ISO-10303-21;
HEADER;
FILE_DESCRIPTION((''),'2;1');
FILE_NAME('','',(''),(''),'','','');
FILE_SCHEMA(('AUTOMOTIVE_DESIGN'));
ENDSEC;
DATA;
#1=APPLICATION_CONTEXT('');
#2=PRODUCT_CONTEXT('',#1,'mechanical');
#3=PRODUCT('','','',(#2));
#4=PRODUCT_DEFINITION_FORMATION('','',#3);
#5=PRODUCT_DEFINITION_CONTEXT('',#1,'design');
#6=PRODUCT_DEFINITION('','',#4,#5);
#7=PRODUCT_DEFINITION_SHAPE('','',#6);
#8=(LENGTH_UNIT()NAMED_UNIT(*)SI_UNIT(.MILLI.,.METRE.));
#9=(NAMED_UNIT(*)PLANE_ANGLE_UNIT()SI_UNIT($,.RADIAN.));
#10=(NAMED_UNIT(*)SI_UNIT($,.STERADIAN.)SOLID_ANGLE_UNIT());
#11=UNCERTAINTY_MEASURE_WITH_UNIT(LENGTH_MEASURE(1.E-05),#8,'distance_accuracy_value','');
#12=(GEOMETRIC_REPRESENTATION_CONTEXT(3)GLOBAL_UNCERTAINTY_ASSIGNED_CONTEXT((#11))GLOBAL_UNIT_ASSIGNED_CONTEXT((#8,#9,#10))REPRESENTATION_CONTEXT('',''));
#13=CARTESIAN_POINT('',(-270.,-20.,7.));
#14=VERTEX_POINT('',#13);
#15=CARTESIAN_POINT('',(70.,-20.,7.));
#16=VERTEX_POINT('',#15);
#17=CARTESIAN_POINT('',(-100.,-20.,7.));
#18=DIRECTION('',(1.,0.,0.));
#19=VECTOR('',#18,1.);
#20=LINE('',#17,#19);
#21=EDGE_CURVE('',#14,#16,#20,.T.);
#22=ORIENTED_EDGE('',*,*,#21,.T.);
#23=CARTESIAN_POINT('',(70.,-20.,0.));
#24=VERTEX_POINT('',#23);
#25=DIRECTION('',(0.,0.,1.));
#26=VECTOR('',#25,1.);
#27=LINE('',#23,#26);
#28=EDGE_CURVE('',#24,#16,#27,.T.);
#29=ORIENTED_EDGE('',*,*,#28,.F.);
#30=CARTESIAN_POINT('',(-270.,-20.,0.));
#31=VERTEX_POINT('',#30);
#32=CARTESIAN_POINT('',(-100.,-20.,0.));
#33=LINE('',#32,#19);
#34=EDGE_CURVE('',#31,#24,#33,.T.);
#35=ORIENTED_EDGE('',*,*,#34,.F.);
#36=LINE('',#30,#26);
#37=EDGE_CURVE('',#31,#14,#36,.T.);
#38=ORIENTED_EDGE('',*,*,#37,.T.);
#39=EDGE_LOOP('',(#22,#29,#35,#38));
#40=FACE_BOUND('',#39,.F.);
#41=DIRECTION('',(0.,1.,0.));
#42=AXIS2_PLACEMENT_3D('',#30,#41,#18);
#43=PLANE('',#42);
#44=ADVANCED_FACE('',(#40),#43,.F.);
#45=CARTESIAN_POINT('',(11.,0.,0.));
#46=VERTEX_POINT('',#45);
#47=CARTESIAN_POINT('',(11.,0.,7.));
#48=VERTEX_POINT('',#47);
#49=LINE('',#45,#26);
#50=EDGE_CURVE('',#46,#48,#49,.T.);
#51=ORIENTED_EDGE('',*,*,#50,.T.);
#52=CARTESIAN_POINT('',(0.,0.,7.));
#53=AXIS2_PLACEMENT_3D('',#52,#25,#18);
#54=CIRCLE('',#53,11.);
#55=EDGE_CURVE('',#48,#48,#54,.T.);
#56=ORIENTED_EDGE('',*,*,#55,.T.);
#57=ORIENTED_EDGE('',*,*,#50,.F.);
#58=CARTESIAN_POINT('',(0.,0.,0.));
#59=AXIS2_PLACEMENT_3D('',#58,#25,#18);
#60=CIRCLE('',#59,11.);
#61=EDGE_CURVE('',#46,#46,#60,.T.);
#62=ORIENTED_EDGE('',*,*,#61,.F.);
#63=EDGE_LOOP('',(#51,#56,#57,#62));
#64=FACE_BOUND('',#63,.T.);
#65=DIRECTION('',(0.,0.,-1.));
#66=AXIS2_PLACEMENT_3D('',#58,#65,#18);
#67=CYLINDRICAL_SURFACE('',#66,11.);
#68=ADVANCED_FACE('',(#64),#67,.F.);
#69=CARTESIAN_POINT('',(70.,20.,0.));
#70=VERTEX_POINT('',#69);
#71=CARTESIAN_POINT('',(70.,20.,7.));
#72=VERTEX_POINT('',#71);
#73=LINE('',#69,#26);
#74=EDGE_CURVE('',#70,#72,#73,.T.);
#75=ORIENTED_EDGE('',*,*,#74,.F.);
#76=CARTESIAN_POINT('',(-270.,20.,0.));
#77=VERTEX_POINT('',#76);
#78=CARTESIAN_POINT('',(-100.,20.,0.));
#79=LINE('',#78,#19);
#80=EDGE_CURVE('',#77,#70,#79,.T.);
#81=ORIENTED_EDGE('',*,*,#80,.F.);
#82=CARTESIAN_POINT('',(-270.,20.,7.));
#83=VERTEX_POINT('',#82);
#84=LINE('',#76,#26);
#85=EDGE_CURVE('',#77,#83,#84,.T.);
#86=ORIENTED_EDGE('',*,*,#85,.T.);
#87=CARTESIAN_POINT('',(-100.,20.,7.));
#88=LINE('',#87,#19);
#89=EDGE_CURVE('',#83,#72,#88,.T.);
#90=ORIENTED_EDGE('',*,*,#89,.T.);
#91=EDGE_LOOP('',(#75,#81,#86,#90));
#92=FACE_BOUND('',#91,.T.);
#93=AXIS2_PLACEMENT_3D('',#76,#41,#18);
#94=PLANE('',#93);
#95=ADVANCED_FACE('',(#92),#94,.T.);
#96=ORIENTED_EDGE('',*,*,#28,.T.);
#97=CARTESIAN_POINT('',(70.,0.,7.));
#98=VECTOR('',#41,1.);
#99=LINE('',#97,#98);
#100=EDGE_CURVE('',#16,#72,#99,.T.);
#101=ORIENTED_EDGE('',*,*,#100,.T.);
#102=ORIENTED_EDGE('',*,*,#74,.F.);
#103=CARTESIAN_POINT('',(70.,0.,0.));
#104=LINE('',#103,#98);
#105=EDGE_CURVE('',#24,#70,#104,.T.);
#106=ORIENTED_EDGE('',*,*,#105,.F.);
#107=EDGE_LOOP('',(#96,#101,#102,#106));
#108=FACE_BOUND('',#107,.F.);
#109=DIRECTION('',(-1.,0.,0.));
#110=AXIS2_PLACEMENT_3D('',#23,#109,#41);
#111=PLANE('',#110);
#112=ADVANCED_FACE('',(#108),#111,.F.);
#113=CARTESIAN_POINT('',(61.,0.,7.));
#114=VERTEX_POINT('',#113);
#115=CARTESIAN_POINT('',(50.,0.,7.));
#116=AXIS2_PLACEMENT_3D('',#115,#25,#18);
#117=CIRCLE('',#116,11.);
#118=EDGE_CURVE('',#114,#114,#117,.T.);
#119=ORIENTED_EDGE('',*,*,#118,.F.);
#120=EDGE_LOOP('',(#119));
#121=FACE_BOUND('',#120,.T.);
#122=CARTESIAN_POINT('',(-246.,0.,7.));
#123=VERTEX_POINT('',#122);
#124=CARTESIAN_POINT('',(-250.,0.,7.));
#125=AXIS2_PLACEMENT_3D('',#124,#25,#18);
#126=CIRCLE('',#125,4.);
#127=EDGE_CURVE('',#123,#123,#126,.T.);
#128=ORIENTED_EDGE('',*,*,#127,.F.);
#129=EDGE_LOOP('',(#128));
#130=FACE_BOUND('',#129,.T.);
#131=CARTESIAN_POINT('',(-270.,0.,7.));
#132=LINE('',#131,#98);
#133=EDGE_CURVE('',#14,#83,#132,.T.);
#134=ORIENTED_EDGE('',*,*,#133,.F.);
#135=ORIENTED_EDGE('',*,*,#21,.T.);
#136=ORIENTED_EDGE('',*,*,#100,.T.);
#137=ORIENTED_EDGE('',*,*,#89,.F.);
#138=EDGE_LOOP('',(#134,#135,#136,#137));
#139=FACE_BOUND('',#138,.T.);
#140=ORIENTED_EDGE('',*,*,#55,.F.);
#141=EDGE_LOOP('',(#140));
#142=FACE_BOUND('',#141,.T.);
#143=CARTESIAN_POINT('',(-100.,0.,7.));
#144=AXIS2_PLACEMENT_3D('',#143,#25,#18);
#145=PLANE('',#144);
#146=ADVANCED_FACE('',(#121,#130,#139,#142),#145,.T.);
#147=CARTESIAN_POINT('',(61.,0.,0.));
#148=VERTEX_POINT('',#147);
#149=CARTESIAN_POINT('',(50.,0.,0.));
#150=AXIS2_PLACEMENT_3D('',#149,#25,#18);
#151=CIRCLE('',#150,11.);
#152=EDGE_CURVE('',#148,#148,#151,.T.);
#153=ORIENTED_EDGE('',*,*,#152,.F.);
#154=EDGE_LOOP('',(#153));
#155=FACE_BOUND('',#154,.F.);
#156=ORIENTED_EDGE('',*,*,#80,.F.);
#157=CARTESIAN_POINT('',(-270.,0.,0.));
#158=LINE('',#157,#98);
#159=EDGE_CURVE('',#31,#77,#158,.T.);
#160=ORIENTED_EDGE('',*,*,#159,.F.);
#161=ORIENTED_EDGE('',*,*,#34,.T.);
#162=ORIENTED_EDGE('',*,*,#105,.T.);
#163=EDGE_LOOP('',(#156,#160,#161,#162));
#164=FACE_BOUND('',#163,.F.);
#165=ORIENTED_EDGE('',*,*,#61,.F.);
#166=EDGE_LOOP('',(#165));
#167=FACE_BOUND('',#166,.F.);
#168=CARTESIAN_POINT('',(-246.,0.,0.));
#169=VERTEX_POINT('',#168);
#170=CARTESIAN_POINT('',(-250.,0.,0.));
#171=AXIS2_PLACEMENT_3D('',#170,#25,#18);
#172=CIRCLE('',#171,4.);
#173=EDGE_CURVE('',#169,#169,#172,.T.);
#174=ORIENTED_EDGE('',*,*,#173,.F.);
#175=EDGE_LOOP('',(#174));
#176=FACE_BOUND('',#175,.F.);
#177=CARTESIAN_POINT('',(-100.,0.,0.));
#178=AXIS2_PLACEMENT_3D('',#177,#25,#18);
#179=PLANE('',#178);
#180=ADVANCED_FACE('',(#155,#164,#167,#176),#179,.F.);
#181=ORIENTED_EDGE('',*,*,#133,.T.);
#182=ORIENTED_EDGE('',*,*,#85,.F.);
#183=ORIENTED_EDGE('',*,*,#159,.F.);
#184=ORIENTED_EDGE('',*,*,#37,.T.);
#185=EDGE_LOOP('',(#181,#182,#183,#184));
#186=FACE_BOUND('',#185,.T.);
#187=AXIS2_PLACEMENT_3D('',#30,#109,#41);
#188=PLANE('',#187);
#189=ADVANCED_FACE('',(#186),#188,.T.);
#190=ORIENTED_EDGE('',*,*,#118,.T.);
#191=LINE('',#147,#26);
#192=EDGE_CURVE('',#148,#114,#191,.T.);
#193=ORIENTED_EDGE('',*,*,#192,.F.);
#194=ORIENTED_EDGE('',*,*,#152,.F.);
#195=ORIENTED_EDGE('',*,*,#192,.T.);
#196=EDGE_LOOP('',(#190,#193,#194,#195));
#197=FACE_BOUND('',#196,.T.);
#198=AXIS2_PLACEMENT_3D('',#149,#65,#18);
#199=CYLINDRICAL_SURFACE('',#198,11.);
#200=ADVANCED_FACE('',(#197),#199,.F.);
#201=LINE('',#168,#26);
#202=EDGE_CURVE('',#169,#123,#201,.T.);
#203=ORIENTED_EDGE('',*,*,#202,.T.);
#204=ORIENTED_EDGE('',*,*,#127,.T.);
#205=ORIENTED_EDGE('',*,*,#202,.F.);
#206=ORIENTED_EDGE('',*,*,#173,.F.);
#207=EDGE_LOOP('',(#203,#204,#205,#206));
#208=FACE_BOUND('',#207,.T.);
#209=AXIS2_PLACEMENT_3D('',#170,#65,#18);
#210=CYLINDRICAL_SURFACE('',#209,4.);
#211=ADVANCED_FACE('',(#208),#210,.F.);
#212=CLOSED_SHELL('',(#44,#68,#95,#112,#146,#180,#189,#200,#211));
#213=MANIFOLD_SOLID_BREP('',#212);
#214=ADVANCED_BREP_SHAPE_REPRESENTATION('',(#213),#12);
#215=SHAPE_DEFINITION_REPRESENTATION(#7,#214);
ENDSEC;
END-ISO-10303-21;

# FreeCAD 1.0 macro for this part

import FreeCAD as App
import Part
import Sketcher


def add_polygon(sketch, points):
    """Adds a closed chain of lines whose ends are joined by coincident constraints."""
    first, n = sketch.GeometryCount, len(points)
    for a, b in zip(points, points[1:] + points[:1]):
        sketch.addGeometry(Part.LineSegment(App.Vector(*a, 0), App.Vector(*b, 0)), False)
    for i in range(n):
        sketch.addConstraint(Sketcher.Constraint("Coincident", first + i, 2, first + (i + 1) % n, 1))

doc = App.newDocument("Part")
body = doc.addObject("PartDesign::Body", "Body")

# Sketch on XY plane
sketch1 = body.newObject("Sketcher::SketchObject", "Sketch")
sketch1.AttachmentSupport = (doc.getObject("XY_Plane"), [""])
sketch1.MapMode = "FlatFace"
add_polygon(sketch1, [(-270, 20), (-270, -20), (70, -20), (70, 20)])  # lines 0-3
sketch1.addGeometry(Part.Circle(App.Vector(-250, 0, 0), App.Vector(0, 0, 1), 4), False)  # 4
sketch1.addGeometry(Part.Circle(App.Vector(0, 0, 0), App.Vector(0, 0, 1), 11), False)  # 5
sketch1.addGeometry(Part.Circle(App.Vector(50, 0, 0), App.Vector(0, 0, 1), 11), False)  # 6
sketch1.addConstraint([
    Sketcher.Constraint("Vertical", 0),
    Sketcher.Constraint("Horizontal", 1),
    Sketcher.Constraint("Vertical", 2),
    Sketcher.Constraint("Horizontal", 3),
    Sketcher.Constraint("Coincident", 5, 3, -1, 1),
    Sketcher.Constraint("Equal", 5, 6),
    Sketcher.Constraint("PointOnObject", 4, 3, -1),
    Sketcher.Constraint("PointOnObject", 6, 3, -1),
    Sketcher.Constraint("Diameter", 4, 8.0),
    Sketcher.Constraint("Diameter", 5, 22.0),
    Sketcher.Constraint("DistanceX", 1, 1, 1, 2, 340.0),
    Sketcher.Constraint("DistanceY", 0, 2, 0, 1, 40.0),
    Sketcher.Constraint("DistanceX", 4, 3, -1, 1, 250.0),
    Sketcher.Constraint("DistanceX", -1, 1, 6, 3, 50.0),
    Sketcher.Constraint("DistanceX", 0, 2, -1, 1, 270.0),
    Sketcher.Constraint("DistanceY", 0, 2, -1, 1, 20.0),
])
pad1 = body.newObject("PartDesign::Pad", "Pad")
pad1.Profile = sketch1
pad1.Length = 7

doc.recompute()
